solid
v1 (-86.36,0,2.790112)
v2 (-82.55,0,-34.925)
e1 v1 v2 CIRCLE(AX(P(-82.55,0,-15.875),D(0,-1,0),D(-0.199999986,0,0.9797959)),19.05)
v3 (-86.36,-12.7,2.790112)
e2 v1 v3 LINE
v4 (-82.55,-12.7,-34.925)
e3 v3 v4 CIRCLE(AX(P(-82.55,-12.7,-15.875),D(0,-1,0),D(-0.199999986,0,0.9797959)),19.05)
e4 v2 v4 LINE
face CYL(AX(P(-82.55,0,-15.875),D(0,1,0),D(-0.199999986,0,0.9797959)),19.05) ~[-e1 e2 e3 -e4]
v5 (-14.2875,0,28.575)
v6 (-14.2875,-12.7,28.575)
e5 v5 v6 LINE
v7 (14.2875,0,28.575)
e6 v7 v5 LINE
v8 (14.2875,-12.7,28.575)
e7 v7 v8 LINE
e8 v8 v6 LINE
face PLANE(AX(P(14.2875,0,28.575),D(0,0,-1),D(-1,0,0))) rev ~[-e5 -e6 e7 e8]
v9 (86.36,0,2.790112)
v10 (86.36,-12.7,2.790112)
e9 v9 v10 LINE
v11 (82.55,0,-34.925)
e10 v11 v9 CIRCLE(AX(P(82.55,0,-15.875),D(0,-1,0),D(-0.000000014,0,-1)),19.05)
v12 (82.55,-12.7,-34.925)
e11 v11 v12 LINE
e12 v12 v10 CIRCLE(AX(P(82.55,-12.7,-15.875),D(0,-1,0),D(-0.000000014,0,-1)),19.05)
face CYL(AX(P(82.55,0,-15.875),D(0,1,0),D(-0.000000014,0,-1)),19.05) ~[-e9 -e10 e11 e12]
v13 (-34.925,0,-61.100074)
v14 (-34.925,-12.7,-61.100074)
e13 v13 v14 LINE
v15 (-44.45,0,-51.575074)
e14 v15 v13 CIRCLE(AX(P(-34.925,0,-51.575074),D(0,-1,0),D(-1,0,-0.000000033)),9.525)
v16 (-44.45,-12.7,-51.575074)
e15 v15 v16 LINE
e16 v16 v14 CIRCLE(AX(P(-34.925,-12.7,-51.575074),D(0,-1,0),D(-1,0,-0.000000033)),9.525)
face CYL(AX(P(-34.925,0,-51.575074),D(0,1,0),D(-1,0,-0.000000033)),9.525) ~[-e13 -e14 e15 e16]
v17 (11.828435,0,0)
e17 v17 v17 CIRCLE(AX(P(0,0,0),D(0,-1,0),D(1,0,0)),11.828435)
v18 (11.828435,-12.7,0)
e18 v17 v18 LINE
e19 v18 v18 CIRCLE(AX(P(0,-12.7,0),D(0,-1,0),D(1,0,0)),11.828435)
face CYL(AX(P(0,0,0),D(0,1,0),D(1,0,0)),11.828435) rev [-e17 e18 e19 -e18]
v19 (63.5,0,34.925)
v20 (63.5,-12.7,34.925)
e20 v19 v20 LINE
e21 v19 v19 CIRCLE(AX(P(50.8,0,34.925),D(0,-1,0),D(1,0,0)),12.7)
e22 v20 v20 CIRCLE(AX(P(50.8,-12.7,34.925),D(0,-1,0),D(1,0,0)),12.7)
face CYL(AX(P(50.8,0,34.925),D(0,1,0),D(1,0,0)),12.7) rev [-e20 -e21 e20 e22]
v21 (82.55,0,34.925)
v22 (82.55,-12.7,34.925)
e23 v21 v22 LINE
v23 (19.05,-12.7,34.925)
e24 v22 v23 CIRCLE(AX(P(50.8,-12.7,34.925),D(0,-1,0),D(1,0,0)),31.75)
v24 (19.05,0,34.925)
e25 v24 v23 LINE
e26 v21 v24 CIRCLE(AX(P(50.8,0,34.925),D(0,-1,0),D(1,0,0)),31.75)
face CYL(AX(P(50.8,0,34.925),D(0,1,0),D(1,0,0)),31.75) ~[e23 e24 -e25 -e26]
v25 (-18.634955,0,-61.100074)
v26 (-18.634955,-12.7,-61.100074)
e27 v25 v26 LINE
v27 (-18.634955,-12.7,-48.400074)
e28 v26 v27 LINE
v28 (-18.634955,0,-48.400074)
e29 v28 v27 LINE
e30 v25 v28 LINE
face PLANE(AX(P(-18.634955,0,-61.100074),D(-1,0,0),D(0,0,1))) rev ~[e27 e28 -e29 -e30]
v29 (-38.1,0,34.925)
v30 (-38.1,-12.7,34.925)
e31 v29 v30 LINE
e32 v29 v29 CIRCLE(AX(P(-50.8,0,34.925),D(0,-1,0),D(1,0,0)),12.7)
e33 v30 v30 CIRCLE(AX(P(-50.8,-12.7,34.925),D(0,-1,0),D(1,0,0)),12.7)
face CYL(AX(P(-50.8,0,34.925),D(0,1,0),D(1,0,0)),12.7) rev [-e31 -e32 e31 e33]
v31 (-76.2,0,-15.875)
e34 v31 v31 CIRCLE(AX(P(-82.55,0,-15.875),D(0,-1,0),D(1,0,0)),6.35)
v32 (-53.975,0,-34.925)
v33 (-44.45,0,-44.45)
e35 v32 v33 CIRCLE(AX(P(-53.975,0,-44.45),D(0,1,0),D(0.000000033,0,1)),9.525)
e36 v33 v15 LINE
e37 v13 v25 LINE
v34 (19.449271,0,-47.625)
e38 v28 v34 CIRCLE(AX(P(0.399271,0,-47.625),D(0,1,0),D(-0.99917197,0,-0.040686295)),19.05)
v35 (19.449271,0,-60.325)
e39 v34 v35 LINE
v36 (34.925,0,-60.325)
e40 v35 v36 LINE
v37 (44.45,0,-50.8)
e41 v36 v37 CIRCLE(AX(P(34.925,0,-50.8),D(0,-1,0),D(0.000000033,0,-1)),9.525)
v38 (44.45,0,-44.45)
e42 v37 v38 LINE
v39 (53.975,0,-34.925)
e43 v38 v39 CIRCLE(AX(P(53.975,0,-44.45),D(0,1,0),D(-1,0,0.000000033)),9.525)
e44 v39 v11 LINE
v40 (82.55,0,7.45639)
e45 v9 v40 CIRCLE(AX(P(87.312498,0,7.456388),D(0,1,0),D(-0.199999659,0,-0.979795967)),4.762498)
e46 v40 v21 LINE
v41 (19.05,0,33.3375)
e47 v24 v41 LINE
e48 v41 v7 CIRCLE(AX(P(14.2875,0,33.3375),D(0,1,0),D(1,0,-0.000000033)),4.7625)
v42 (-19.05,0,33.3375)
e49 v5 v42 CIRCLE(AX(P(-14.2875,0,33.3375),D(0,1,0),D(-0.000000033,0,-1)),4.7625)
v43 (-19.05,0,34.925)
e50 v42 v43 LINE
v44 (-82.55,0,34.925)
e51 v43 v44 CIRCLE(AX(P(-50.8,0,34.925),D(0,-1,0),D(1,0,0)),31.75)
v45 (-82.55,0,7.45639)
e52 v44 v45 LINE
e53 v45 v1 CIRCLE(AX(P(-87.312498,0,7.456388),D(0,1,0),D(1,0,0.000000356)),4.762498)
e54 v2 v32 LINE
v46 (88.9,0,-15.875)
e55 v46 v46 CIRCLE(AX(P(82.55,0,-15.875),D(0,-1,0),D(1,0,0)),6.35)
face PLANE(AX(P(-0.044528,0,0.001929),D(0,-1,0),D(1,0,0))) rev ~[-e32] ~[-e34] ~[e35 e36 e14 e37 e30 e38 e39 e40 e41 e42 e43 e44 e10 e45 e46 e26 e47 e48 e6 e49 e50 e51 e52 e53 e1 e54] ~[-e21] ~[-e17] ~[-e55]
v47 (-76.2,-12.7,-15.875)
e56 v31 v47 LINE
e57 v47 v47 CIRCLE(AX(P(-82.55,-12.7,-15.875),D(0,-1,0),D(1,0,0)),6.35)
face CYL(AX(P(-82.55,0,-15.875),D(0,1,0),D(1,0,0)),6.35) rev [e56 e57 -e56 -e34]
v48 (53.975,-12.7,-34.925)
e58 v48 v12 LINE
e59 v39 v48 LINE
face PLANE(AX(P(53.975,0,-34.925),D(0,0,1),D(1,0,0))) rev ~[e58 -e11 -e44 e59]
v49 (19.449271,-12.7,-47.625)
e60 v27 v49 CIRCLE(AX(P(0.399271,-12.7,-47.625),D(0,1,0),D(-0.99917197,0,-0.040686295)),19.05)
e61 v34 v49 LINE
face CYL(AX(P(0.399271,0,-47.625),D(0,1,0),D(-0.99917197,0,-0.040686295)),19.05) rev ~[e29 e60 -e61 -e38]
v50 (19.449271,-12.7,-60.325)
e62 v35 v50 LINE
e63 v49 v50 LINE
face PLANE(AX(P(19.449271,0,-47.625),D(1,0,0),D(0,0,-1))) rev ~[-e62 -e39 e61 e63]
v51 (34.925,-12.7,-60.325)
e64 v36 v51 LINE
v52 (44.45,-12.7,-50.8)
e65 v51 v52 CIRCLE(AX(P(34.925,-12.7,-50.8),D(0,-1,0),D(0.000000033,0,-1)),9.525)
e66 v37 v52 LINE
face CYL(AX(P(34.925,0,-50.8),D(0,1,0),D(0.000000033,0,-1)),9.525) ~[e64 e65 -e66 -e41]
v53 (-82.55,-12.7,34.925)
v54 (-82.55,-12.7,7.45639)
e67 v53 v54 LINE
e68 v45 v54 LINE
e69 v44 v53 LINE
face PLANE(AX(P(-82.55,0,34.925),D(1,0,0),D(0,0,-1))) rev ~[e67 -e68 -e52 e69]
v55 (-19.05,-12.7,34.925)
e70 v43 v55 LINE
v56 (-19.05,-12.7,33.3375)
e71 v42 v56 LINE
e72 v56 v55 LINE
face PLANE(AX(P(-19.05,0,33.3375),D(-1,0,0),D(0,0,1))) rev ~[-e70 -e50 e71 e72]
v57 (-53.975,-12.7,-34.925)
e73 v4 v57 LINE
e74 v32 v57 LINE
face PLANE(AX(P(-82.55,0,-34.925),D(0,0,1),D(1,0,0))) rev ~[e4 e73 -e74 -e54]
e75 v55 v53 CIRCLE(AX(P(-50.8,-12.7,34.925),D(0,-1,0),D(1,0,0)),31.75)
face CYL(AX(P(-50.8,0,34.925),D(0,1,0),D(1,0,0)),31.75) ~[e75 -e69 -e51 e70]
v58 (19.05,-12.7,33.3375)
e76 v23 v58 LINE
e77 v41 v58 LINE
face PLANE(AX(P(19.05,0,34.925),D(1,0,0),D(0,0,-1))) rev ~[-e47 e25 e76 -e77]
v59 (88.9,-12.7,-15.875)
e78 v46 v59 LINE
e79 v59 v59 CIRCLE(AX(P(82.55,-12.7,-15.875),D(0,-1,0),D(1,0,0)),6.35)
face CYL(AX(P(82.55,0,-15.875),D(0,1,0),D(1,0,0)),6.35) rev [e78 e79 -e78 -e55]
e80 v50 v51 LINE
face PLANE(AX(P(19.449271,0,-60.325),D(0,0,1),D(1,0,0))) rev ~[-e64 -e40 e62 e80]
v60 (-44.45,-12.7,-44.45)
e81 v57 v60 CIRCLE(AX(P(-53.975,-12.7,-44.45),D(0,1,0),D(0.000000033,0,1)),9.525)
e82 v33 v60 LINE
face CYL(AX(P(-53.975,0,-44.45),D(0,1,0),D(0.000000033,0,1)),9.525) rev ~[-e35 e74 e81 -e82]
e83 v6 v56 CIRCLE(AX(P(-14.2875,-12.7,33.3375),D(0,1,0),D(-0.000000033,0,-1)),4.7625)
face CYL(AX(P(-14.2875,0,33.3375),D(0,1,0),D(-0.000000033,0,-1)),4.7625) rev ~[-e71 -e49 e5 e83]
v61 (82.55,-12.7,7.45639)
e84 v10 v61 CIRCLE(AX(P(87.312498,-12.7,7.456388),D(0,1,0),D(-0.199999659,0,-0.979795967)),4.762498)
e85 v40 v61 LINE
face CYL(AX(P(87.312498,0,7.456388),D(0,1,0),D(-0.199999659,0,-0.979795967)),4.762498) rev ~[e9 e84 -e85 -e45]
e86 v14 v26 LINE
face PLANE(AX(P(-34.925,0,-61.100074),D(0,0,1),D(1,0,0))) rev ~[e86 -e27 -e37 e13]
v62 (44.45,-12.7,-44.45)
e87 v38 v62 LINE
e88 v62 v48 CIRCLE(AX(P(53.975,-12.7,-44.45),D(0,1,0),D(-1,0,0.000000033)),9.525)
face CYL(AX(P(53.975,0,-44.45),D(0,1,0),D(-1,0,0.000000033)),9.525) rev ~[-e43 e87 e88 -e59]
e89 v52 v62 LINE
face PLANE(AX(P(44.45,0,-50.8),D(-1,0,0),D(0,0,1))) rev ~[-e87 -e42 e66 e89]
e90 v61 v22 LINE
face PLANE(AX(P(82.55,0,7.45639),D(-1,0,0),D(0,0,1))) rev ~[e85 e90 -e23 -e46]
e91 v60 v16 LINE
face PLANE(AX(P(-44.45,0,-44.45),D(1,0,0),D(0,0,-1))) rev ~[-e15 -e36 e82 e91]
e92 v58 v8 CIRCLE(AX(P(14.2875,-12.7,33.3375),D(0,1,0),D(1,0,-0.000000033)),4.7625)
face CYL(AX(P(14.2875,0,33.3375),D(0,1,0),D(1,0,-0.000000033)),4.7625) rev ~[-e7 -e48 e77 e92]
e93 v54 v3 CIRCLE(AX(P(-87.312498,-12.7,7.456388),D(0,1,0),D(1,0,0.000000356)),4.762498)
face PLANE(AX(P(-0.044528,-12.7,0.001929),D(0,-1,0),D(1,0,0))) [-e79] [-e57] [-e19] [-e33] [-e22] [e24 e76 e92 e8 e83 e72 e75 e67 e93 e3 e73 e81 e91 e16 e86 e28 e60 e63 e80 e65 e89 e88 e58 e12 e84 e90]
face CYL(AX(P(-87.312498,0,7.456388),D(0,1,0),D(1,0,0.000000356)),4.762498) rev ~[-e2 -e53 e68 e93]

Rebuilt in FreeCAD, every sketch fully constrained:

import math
import FreeCAD as App
import Part
import Sketcher
Q = App.Units.Quantity

doc = App.newDocument("Part")
body = doc.addObject("PartDesign::Body", "Body")

# Sketch on XZ plane
sketch1 = body.newObject("Sketcher::SketchObject", "Sketch")
sketch1.AttachmentSupport = (doc.getObject("XZ_Plane"), [""])
sketch1.MapMode = "FlatFace"
sketch1.addGeometry([
    Part.LineSegment(App.Vector(82.5, 7.5, 0), App.Vector(82.5, 34.9, 0)),  # 0
    Part.ArcOfCircle(Part.Circle(App.Vector(50.8, 34.9, 0), App.Vector(0, 0, 1), 31.8), math.radians(0), math.radians(180)),  # 1
    Part.LineSegment(App.Vector(19.1, 34.9, 0), App.Vector(19.1, 33.3, 0)),  # 2
    Part.ArcOfCircle(Part.Circle(App.Vector(14.3, 33.3, 0), App.Vector(0, 0, 1), 4.8), math.radians(-90), math.radians(0)),  # 3
    Part.LineSegment(App.Vector(14.3, 28.6, 0), App.Vector(-14.3, 28.6, 0)),  # 4
    Part.ArcOfCircle(Part.Circle(App.Vector(-14.3, 33.3, 0), App.Vector(0, 0, 1), 4.8), math.radians(-180), math.radians(-90)),  # 5
    Part.LineSegment(App.Vector(-19.1, 33.3, 0), App.Vector(-19.1, 34.9, 0)),  # 6
    Part.ArcOfCircle(Part.Circle(App.Vector(-50.8, 34.9, 0), App.Vector(0, 0, 1), 31.8), math.radians(0), math.radians(180)),  # 7
    Part.LineSegment(App.Vector(-82.5, 34.9, 0), App.Vector(-82.5, 7.5, 0)),  # 8
    Part.ArcOfCircle(Part.Circle(App.Vector(-87.3, 7.5, 0), App.Vector(0, 0, 1), 4.8), math.radians(-78), math.radians(0)),  # 9
    Part.ArcOfCircle(Part.Circle(App.Vector(-82.6, -15.9, 0), App.Vector(0, 0, 1), 19.1), math.radians(102), math.radians(270)),  # 10
    Part.LineSegment(App.Vector(-82.5, -34.9, 0), App.Vector(-54, -34.9, 0)),  # 11
    Part.ArcOfCircle(Part.Circle(App.Vector(-54, -44.5, 0), App.Vector(0, 0, 1), 9.5), math.radians(0), math.radians(90)),  # 12
    Part.LineSegment(App.Vector(-44.5, -44.5, 0), App.Vector(-44.5, -51.6, 0)),  # 13
    Part.ArcOfCircle(Part.Circle(App.Vector(-34.9, -51.6, 0), App.Vector(0, 0, 1), 9.5), math.radians(-180), math.radians(-90)),  # 14
    Part.LineSegment(App.Vector(-34.9, -61.1, 0), App.Vector(-18.6, -61.1, 0)),  # 15
    Part.LineSegment(App.Vector(-18.6, -61.1, 0), App.Vector(-18.6, -48.4, 0)),  # 16
    Part.ArcOfCircle(Part.Circle(App.Vector(0.4, -47.6, 0), App.Vector(0, 0, 1), 19), math.radians(0), math.radians(182)),  # 17
    Part.LineSegment(App.Vector(19.4, -47.6, 0), App.Vector(19.4, -60.3, 0)),  # 18
    Part.LineSegment(App.Vector(19.4, -60.3, 0), App.Vector(34.9, -60.3, 0)),  # 19
    Part.ArcOfCircle(Part.Circle(App.Vector(34.9, -50.8, 0), App.Vector(0, 0, 1), 9.5), math.radians(-90), math.radians(0)),  # 20
    Part.LineSegment(App.Vector(44.5, -50.8, 0), App.Vector(44.5, -44.5, 0)),  # 21
    Part.ArcOfCircle(Part.Circle(App.Vector(54, -44.5, 0), App.Vector(0, 0, 1), 9.5), math.radians(90), math.radians(180)),  # 22
    Part.LineSegment(App.Vector(54, -34.9, 0), App.Vector(82.5, -34.9, 0)),  # 23
    Part.ArcOfCircle(Part.Circle(App.Vector(82.6, -15.9, 0), App.Vector(0, 0, 1), 19.1), math.radians(-90), math.radians(78)),  # 24
    Part.ArcOfCircle(Part.Circle(App.Vector(87.3, 7.5, 0), App.Vector(0, 0, 1), 4.8), math.radians(180), math.radians(258)),  # 25
    Part.Circle(App.Vector(-82.5, -15.9, 0), App.Vector(0, 0, 1), 6.3),  # 26
    Part.Circle(App.Vector(82.5, -15.9, 0), App.Vector(0, 0, 1), 6.3),  # 27
    Part.Circle(App.Vector(0, 0, 0), App.Vector(0, 0, 1), 11.8),  # 28
    Part.Circle(App.Vector(-50.8, 34.9, 0), App.Vector(0, 0, 1), 12.7),  # 29
    Part.Circle(App.Vector(50.8, 34.9, 0), App.Vector(0, 0, 1), 12.7),  # 30
], False)
sketch1.addConstraint([
    Sketcher.Constraint("Tangent", 0, 2, 1, 1),
    Sketcher.Constraint("Tangent", 1, 2, 2, 1),
    Sketcher.Constraint("Tangent", 2, 2, 3, 2),
    Sketcher.Constraint("Tangent", 3, 1, 4, 1),
    Sketcher.Constraint("Tangent", 4, 2, 5, 2),
    Sketcher.Constraint("Tangent", 5, 1, 6, 1),
    Sketcher.Constraint("Tangent", 6, 2, 7, 1),
    Sketcher.Constraint("Tangent", 7, 2, 8, 1),
    Sketcher.Constraint("Tangent", 8, 2, 9, 2),
    Sketcher.Constraint("Tangent", 9, 1, 10, 1),
    Sketcher.Constraint("Tangent", 10, 2, 11, 1),
    Sketcher.Constraint("Tangent", 11, 2, 12, 2),
    Sketcher.Constraint("Tangent", 12, 1, 13, 1),
    Sketcher.Constraint("Tangent", 13, 2, 14, 1),
    Sketcher.Constraint("Tangent", 14, 2, 15, 1),
    Sketcher.Constraint("Coincident", 15, 2, 16, 1),
    Sketcher.Constraint("Coincident", 16, 2, 17, 2),
    Sketcher.Constraint("Tangent", 17, 1, 18, 1),
    Sketcher.Constraint("Coincident", 18, 2, 19, 1),
    Sketcher.Constraint("Tangent", 19, 2, 20, 1),
    Sketcher.Constraint("Tangent", 20, 2, 21, 1),
    Sketcher.Constraint("Tangent", 21, 2, 22, 2),
    Sketcher.Constraint("Tangent", 22, 1, 23, 1),
    Sketcher.Constraint("Tangent", 23, 2, 24, 1),
    Sketcher.Constraint("Tangent", 24, 2, 25, 2),
    Sketcher.Constraint("Tangent", 25, 1, 0, 1),
    Sketcher.Constraint("Vertical", 0),
    Sketcher.Constraint("Vertical", 2),
    Sketcher.Constraint("Horizontal", 4),
    Sketcher.Constraint("Vertical", 6),
    Sketcher.Constraint("Vertical", 8),
    Sketcher.Constraint("Horizontal", 11),
    Sketcher.Constraint("Vertical", 13),
    Sketcher.Constraint("Horizontal", 15),
    Sketcher.Constraint("Vertical", 16),
    Sketcher.Constraint("Vertical", 18),
    Sketcher.Constraint("Horizontal", 19),
    Sketcher.Constraint("Vertical", 21),
    Sketcher.Constraint("Horizontal", 23),
    Sketcher.Constraint("Coincident", 28, 3, -1, 1),
    Sketcher.Constraint("Coincident", 26, 3, 10, 3),
    Sketcher.Constraint("Coincident", 27, 3, 24, 3),
    Sketcher.Constraint("Coincident", 29, 3, 7, 3),
    Sketcher.Constraint("Coincident", 30, 3, 1, 3),
    Sketcher.Constraint("Equal", 3, 5),
    Sketcher.Constraint("Equal", 1, 7),
    Sketcher.Constraint("Equal", 12, 14),
    Sketcher.Constraint("Equal", 10, 17),
    Sketcher.Constraint("Equal", 14, 20),
    Sketcher.Constraint("Equal", 20, 22),
    Sketcher.Constraint("Equal", 17, 24),
    Sketcher.Constraint("Equal", 9, 25),
    Sketcher.Constraint("Equal", 26, 27),
    Sketcher.Constraint("Equal", 29, 30),
    Sketcher.Constraint("Symmetric", 0, 2, 10, 2, -1, 1),
    Sketcher.Constraint("Symmetric", 7, 2, 23, 2, -1, 1),
    Sketcher.Constraint("Symmetric", 1, 3, 7, 3, -2),
    Sketcher.Constraint("Equal", 4, 11),
    Sketcher.Constraint("Equal", 11, 23),
    Sketcher.Constraint("Equal", 16, 18),
    Sketcher.Constraint("Diameter", 29, Q("1 in")),
    Sketcher.Constraint("Diameter", 26, Q("0.5 in")),
    Sketcher.Constraint("Radius", 1, Q("1.25 in")),
    Sketcher.Constraint("Radius", 10, Q("0.75 in")),
    Sketcher.Constraint("DistanceY", 16, 1, 16, 2, Q("0.5 in")),
    Sketcher.Constraint("DistanceX", -1, 1, 1, 3, Q("2 in")),
    Sketcher.Constraint("DistanceY", 20, 3, -1, 1, Q("2 in")),
    Sketcher.Constraint("Radius", 3, Q("0.1875 in")),
    Sketcher.Constraint("Radius", 9, Q("0.1874999 in")),
    Sketcher.Constraint("Radius", 12, Q("0.375 in")),
    Sketcher.Constraint("DistanceY", 10, 3, 7, 3, Q("2 in")),
    Sketcher.Constraint("DistanceY", 2, 2, 2, 1, Q("0.0625 in")),
    Sketcher.Constraint("Diameter", 28, 23.65687),
    Sketcher.Constraint("DistanceX", 19, 1, 19, 2, 15.475729),
    Sketcher.Constraint("DistanceX", 15, 1, 15, 2, 16.290045),
])
pad1 = body.newObject("PartDesign::Pad", "Pad")
pad1.Profile = sketch1
pad1.Length = Q("0.5 in")

doc.recompute()
